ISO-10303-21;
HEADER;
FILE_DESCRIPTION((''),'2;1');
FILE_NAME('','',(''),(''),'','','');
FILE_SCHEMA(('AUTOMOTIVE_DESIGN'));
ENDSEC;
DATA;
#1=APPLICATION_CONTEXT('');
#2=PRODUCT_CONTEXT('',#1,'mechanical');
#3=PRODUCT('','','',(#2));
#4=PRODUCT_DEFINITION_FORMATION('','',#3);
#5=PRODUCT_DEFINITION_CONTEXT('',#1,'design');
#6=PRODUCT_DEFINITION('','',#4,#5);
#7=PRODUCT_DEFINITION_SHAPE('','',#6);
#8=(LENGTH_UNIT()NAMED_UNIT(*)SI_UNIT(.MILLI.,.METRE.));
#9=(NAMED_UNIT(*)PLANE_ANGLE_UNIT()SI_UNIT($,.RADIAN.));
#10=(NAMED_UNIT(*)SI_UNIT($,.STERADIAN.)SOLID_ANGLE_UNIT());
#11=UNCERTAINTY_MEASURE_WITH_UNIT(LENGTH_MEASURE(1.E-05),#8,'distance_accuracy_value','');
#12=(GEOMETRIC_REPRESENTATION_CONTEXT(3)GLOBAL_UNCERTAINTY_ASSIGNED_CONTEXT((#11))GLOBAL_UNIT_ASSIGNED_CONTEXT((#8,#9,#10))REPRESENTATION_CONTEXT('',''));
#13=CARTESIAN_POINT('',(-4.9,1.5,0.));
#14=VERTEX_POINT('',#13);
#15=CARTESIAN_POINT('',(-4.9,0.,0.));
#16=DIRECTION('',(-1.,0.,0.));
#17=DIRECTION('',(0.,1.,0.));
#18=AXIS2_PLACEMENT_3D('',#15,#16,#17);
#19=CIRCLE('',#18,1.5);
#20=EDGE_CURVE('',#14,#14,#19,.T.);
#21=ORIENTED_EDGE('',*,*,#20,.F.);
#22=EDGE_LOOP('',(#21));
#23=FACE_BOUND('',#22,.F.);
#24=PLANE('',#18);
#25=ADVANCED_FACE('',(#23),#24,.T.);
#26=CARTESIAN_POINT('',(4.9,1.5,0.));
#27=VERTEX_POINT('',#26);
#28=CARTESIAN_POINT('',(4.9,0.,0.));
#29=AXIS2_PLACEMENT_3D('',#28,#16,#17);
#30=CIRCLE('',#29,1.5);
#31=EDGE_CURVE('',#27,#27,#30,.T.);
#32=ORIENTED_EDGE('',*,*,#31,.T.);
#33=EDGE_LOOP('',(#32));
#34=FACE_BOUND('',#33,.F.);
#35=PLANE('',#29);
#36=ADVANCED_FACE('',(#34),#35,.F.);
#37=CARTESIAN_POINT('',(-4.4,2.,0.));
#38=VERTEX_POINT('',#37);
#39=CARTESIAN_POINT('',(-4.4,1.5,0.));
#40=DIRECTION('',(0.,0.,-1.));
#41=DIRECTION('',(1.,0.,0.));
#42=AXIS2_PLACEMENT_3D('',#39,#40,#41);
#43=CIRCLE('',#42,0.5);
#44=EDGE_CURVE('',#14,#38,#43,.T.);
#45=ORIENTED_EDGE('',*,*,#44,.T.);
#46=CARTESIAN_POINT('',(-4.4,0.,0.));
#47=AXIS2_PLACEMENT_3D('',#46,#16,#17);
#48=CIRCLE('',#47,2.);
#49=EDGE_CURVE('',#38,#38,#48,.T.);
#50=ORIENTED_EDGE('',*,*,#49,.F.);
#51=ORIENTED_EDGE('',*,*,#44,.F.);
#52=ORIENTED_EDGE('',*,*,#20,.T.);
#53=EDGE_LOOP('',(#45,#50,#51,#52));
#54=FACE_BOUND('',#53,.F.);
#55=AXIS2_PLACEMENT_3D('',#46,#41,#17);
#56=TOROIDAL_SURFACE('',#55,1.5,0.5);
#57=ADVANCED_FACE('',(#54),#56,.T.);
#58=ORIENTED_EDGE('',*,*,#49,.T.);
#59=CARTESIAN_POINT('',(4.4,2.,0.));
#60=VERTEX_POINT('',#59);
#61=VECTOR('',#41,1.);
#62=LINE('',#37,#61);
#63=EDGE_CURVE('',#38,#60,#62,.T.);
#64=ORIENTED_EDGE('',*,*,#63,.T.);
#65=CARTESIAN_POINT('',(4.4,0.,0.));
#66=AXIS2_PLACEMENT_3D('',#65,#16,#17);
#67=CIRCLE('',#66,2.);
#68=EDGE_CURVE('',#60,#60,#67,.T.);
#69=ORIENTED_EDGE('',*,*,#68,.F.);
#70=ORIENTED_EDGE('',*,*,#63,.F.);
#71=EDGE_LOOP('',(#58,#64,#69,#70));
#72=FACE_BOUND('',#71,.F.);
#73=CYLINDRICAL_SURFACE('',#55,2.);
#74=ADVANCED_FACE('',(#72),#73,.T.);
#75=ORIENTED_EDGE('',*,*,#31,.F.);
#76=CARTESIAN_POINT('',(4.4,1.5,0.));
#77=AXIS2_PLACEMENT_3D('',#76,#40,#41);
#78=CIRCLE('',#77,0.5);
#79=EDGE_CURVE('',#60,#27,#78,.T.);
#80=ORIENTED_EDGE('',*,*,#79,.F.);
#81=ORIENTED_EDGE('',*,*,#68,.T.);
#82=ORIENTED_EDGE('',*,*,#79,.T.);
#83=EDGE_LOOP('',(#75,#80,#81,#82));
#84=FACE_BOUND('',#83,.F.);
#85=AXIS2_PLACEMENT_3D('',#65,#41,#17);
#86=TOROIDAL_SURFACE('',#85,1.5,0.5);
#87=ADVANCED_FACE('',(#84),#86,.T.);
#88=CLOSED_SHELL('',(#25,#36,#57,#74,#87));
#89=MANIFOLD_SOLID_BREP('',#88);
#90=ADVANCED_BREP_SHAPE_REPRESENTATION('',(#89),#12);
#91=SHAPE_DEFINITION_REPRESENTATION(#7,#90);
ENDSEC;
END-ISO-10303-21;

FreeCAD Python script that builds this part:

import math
import FreeCAD as App
import Part
import Sketcher

V = App.Vector

doc = App.newDocument("Part")
body = doc.addObject("PartDesign::Body", "Body")

# Sketch on XY plane
sketch1 = body.newObject("Sketcher::SketchObject", "Sketch")
sketch1.AttachmentSupport = (doc.getObject("XY_Plane"), [""])
sketch1.MapMode = "FlatFace"
sketch1.addGeometry([
    Part.LineSegment(V(-4.9, 1.5, 0), V(-4.9, 0, 0)),  # 0
    Part.LineSegment(V(-4.9, 0, 0), V(4.9, 0, 0)),  # 1
    Part.LineSegment(V(4.9, 0, 0), V(4.9, 1.5, 0)),  # 2
    Part.ArcOfCircle(Part.Circle(V(4.4, 1.5, 0), V(0, 0, 1), 0.5), math.radians(0), math.radians(90)),  # 3
    Part.LineSegment(V(4.4, 2, 0), V(-4.4, 2, 0)),  # 4
    Part.ArcOfCircle(Part.Circle(V(-4.4, 1.5, 0), V(0, 0, 1), 0.5), math.radians(90), math.radians(180)),  # 5
], False)
sketch1.addConstraint([
    Sketcher.Constraint("Coincident", 0, 2, 1, 1),
    Sketcher.Constraint("Coincident", 1, 2, 2, 1),
    Sketcher.Constraint("Tangent", 2, 2, 3, 1),
    Sketcher.Constraint("Tangent", 3, 2, 4, 1),
    Sketcher.Constraint("Tangent", 4, 2, 5, 1),
    Sketcher.Constraint("Tangent", 5, 2, 0, 1),
    Sketcher.Constraint("Vertical", 0),
    Sketcher.Constraint("Horizontal", 1),
    Sketcher.Constraint("Vertical", 2),
    Sketcher.Constraint("Horizontal", 4),
    Sketcher.Constraint("Equal", 3, 5),
    Sketcher.Constraint("Symmetric", 0, 2, 1, 2, -1, 1),
    Sketcher.Constraint("Radius", 3, 0.5),
    Sketcher.Constraint("DistanceX", 1, 1, 1, 2, 9.8),
    Sketcher.Constraint("DistanceY", 0, 2, 0, 1, 1.5),
])
revolution = body.newObject("PartDesign::Revolution", "Revolution")
revolution.Profile = sketch1
revolution.ReferenceAxis = (sketch1, ["H_Axis"])
revolution.Angle = 360

doc.recompute()
